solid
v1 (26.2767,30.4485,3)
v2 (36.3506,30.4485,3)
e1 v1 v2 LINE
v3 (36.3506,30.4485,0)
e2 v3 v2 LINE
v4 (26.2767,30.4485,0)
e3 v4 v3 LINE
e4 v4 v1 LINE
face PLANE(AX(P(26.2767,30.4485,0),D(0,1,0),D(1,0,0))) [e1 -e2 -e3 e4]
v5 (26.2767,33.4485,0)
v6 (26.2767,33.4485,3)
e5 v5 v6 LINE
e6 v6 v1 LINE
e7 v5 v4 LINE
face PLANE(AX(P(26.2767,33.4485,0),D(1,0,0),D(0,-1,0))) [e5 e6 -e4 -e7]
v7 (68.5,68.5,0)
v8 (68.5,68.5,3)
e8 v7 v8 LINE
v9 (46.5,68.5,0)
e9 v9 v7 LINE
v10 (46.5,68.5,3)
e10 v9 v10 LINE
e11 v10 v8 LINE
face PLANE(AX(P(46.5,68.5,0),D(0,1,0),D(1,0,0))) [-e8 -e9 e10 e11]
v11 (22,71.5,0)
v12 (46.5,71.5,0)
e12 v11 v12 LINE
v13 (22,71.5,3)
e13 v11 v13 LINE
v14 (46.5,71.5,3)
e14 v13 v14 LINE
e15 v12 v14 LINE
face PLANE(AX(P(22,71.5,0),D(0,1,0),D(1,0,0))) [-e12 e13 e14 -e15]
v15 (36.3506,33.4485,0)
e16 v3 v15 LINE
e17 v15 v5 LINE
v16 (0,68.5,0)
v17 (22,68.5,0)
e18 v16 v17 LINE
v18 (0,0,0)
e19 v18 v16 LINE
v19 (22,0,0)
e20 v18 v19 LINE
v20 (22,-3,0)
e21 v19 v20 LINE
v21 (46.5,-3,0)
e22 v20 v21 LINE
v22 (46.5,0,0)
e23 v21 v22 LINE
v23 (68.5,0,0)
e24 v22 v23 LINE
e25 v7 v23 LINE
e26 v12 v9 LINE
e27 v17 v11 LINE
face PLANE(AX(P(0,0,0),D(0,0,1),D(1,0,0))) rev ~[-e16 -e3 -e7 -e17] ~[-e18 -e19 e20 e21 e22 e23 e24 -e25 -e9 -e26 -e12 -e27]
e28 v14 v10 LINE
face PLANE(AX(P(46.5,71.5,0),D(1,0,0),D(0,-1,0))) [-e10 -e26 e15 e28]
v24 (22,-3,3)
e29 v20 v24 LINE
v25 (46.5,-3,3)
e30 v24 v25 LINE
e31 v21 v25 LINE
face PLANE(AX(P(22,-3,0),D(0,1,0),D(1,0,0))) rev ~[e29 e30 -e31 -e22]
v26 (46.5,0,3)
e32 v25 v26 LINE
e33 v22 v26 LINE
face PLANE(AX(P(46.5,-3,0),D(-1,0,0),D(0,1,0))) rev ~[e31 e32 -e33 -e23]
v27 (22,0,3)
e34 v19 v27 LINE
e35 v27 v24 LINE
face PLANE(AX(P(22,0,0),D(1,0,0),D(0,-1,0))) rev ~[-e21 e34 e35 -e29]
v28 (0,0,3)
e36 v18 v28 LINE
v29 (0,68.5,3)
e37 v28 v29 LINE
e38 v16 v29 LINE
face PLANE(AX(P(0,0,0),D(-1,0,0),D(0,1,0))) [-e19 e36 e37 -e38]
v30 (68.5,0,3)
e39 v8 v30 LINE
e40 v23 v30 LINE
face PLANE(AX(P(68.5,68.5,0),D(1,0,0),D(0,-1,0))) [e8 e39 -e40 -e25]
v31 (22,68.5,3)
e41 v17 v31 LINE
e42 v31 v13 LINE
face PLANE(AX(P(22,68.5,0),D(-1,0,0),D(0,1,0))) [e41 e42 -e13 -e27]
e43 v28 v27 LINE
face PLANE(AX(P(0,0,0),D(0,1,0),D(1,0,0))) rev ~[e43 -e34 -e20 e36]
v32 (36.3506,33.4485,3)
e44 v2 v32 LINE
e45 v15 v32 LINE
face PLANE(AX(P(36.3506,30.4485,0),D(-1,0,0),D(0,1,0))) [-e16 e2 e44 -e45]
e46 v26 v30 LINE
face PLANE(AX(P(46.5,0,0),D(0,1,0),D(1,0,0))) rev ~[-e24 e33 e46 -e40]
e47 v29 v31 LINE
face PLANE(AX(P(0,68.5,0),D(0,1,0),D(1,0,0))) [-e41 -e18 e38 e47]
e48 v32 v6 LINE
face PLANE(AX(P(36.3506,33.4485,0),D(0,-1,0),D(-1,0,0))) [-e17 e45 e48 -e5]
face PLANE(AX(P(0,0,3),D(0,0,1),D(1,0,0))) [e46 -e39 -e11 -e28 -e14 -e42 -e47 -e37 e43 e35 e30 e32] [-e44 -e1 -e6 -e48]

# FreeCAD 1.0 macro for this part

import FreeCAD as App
import Part
import Sketcher
Q = App.Units.Quantity


def add_polygon(sketch, points):
    """Adds a closed chain of lines whose ends are joined by coincident constraints."""
    first, n = sketch.GeometryCount, len(points)
    for a, b in zip(points, points[1:] + points[:1]):
        sketch.addGeometry(Part.LineSegment(App.Vector(*a, 0), App.Vector(*b, 0)), False)
    for i in range(n):
        sketch.addConstraint(Sketcher.Constraint("Coincident", first + i, 2, first + (i + 1) % n, 1))

doc = App.newDocument("Part")
body = doc.addObject("PartDesign::Body", "Body")

# Sketch on XY plane
sketch1 = body.newObject("Sketcher::SketchObject", "Sketch")
sketch1.AttachmentSupport = (doc.getObject("XY_Plane"), [""])
sketch1.MapMode = "FlatFace"
add_polygon(sketch1, [(0, 68.5), (0, 0), (22, 0), (22, -3), (46.5, -3), (46.5, 0), (68.5, 0), (68.5, 68.5), (46.5, 68.5), (46.5, 71.5), (22, 71.5), (22, 68.5)])  # lines 0-11
add_polygon(sketch1, [(36.3506, 30.4485), (26.2767, 30.4485), (26.2767, 33.4485), (36.3506, 33.4485)])  # lines 12-15
sketch1.addConstraint([
    Sketcher.Constraint("Vertical", 0),
    Sketcher.Constraint("Horizontal", 1),
    Sketcher.Constraint("Vertical", 2),
    Sketcher.Constraint("Horizontal", 3),
    Sketcher.Constraint("Vertical", 4),
    Sketcher.Constraint("Horizontal", 5),
    Sketcher.Constraint("Vertical", 6),
    Sketcher.Constraint("Horizontal", 7),
    Sketcher.Constraint("Vertical", 8),
    Sketcher.Constraint("Horizontal", 9),
    Sketcher.Constraint("Vertical", 10),
    Sketcher.Constraint("Horizontal", 11),
    Sketcher.Constraint("Horizontal", 12),
    Sketcher.Constraint("Vertical", 13),
    Sketcher.Constraint("Horizontal", 14),
    Sketcher.Constraint("Vertical", 15),
    Sketcher.Constraint("Coincident", 0, 2, -1, 1),
    Sketcher.Constraint("PointOnObject", 4, 2, -1),
    Sketcher.Constraint("Horizontal", 7, 2, 10, 2),
    Sketcher.Constraint("Vertical", 4, 2, 7, 2),
    Sketcher.Constraint("Vertical", 2, 2, 9, 2),
    Sketcher.Constraint("Equal", 1, 5),
    Sketcher.Constraint("Equal", 4, 8),
    Sketcher.Constraint("Equal", 10, 13),
    Sketcher.Constraint("DistanceX", 1, 1, 1, 2, Q("22 mm")),
    Sketcher.Constraint("DistanceY", 2, 2, 2, 1, Q("3 mm")),
    Sketcher.Constraint("DistanceX", 3, 1, 3, 2, Q("24.5 mm")),
    Sketcher.Constraint("DistanceY", 0, 2, 0, 1, Q("68.5 mm")),
    Sketcher.Constraint("DistanceX", 12, 2, 12, 1, Q("10.074 mm")),
    Sketcher.Constraint("DistanceX", -1, 1, 12, 2, Q("26.2767 mm")),
    Sketcher.Constraint("DistanceY", -1, 1, 12, 2, Q("30.4485 mm")),
])
pad1 = body.newObject("PartDesign::Pad", "Pad")
pad1.Profile = sketch1
pad1.Length = 3

doc.recompute()
